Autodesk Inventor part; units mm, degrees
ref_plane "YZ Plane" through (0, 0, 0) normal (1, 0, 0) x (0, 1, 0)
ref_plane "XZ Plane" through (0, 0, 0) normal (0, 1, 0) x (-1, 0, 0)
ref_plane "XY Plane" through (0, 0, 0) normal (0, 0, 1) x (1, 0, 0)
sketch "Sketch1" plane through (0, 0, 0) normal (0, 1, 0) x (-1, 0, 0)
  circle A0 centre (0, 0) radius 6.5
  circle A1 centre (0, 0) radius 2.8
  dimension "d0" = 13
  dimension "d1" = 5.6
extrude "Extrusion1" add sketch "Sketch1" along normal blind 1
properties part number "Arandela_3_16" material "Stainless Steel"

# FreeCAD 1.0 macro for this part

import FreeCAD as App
import Part
import Sketcher
from FreeCAD import Vector
Q = App.Units.Quantity

doc = App.newDocument("Part")
body = doc.addObject("PartDesign::Body", "Body")

sketch1 = body.newObject("Sketcher::SketchObject", "Sketch")
sketch1.AttachmentSupport = (doc.getObject("XZ_Plane"), [""])
sketch1.MapMode = "FlatFace"
sketch1.addGeometry(Part.Circle(Vector(0, 0, 0), Vector(0, 0, 1), 6.5), False)
sketch1.addGeometry(Part.Circle(Vector(0, 0, 0), Vector(0, 0, 1), 2.8), False)
sketch1.addConstraint(Sketcher.Constraint("Coincident", 0, 3, -1, 1))
sketch1.addConstraint(Sketcher.Constraint("Coincident", 1, 3, -1, 1))
sketch1.addConstraint(Sketcher.Constraint("Diameter", 0, Q("13 mm")))
sketch1.addConstraint(Sketcher.Constraint("Diameter", 1, Q("5.6 mm")))
pad1 = body.newObject("PartDesign::Pad", "Pad")
pad1.Profile = sketch1
pad1.Length = 1
pad1.Reversed = True

doc.recompute()
